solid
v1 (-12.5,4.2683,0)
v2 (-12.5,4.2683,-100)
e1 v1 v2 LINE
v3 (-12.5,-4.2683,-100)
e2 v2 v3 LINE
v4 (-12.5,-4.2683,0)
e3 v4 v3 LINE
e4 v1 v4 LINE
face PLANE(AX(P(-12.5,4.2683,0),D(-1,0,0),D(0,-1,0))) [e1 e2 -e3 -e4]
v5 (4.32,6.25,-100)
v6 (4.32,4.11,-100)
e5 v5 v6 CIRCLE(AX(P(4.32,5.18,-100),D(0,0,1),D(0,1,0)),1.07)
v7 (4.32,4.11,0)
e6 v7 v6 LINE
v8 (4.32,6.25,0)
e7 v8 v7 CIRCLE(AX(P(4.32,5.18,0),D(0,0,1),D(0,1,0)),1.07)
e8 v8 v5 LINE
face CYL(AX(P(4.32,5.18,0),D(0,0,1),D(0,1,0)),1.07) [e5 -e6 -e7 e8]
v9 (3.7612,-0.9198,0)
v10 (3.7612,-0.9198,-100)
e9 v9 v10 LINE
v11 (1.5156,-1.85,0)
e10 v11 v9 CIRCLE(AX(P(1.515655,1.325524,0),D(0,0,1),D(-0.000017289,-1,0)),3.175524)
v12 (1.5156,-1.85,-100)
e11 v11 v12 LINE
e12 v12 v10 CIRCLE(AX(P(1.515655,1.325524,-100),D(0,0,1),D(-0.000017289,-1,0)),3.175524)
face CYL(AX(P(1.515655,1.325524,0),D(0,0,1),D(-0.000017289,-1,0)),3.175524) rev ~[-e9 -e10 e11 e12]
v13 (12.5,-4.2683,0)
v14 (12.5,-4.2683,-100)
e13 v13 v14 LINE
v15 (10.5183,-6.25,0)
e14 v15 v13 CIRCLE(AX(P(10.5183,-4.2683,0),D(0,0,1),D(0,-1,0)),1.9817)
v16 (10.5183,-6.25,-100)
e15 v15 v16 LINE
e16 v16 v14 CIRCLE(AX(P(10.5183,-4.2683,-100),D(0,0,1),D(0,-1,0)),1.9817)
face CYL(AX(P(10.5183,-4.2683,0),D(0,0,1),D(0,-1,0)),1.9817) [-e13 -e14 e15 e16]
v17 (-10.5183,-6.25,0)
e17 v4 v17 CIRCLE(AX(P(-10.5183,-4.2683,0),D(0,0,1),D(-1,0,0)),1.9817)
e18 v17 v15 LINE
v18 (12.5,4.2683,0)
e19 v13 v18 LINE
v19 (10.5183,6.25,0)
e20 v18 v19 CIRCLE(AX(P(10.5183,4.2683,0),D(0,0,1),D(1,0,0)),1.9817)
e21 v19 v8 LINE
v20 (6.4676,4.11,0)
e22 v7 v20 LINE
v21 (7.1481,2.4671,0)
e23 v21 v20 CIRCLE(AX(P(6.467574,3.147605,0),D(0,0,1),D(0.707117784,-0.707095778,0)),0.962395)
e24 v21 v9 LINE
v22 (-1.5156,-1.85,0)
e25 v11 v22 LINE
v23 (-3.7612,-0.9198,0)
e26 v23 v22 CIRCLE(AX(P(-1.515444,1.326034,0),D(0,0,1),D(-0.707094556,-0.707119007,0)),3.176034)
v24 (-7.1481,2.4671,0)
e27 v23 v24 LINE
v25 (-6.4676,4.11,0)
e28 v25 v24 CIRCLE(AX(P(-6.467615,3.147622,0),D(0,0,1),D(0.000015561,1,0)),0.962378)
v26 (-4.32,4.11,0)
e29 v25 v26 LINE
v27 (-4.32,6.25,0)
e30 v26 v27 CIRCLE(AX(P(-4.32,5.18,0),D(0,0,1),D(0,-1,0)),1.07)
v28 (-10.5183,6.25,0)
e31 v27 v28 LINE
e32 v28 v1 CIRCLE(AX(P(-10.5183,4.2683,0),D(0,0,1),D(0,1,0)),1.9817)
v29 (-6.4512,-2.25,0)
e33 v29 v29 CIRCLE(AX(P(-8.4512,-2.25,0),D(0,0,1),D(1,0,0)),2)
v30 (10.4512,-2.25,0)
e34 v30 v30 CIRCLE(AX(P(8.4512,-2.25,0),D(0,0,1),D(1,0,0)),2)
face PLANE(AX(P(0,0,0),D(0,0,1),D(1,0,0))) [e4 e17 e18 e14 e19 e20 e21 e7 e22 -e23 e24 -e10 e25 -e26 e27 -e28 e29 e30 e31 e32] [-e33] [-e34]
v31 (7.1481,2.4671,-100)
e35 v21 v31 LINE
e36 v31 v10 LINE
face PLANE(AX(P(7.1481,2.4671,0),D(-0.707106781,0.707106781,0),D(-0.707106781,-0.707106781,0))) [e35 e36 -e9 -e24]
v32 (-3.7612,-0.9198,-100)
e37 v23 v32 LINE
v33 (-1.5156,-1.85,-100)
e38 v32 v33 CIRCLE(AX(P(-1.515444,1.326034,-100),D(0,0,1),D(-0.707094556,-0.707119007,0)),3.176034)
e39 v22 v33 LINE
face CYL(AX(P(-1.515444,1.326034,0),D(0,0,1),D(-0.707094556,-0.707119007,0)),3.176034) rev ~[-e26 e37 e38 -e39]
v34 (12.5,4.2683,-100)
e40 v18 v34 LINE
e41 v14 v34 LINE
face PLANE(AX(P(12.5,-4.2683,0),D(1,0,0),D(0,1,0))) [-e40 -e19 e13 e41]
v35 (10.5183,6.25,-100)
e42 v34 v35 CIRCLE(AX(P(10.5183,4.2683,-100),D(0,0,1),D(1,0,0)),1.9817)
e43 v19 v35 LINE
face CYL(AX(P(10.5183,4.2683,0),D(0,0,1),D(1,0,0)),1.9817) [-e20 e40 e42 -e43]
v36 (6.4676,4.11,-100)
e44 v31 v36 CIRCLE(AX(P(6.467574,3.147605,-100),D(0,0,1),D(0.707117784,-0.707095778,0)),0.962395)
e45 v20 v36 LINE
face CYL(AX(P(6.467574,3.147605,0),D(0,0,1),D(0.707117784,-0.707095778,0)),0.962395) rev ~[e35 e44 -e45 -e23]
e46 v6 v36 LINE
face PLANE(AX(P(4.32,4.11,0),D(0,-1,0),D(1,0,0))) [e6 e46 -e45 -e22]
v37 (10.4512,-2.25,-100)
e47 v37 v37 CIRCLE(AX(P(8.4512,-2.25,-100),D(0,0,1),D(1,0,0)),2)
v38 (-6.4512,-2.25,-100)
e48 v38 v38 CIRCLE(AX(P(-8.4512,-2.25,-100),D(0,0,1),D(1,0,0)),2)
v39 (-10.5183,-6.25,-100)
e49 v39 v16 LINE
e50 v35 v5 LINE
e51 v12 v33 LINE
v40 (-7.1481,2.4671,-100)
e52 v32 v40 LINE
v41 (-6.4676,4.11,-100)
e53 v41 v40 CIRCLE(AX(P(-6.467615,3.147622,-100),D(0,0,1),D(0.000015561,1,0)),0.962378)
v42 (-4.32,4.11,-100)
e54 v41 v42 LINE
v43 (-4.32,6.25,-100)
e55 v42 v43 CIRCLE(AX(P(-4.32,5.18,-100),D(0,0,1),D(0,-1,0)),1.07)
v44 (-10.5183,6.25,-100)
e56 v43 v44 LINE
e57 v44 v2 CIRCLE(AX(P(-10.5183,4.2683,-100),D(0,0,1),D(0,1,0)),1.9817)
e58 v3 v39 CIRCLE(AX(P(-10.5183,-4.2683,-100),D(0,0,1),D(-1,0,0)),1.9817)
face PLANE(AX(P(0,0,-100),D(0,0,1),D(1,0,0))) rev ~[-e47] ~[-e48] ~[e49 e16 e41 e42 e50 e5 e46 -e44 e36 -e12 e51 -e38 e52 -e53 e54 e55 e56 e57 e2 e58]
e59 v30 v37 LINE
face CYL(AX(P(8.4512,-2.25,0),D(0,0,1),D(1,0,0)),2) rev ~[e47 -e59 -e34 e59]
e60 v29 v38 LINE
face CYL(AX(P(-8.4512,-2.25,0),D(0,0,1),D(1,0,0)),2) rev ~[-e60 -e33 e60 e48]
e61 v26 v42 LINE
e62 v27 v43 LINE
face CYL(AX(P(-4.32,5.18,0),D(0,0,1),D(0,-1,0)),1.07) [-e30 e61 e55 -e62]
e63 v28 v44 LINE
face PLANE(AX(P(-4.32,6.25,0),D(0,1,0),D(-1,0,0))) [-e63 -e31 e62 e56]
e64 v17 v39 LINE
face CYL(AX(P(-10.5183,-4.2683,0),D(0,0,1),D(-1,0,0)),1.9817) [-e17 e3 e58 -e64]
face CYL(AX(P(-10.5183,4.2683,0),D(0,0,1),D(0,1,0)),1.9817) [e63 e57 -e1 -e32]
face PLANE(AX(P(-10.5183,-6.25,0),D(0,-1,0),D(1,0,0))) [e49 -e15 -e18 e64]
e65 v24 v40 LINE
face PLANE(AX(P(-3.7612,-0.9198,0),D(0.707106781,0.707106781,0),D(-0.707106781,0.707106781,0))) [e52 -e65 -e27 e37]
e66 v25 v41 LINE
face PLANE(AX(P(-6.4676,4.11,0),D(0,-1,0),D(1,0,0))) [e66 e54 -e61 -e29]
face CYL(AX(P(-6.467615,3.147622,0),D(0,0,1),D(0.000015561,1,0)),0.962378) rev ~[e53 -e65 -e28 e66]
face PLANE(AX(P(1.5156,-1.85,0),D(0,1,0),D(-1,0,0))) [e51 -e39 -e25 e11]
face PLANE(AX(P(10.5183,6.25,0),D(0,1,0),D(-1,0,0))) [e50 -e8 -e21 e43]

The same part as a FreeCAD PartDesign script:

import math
import FreeCAD as App
import Part
import Sketcher
from FreeCAD import Vector

doc = App.newDocument("Part")
body = doc.addObject("PartDesign::Body", "Body")

# Sketch on XY plane
sketch1 = body.newObject("Sketcher::SketchObject", "Sketch")
sketch1.AttachmentSupport = (doc.getObject("XY_Plane"), [""])
sketch1.MapMode = "FlatFace"
sketch1.addGeometry(Part.LineSegment(Vector(-4.32, 6.25, 0), Vector(-10.5183, 6.25, 0)), False)
sketch1.addGeometry(Part.ArcOfCircle(Part.Circle(Vector(-10.5183, 4.2683, 0), Vector(0, 0, 1), 1.9817), math.radians(90), math.radians(180)), False)
sketch1.addGeometry(Part.LineSegment(Vector(-12.5, 4.2683, 0), Vector(-12.5, -4.2683, 0)), False)
sketch1.addGeometry(Part.ArcOfCircle(Part.Circle(Vector(-10.5183, -4.2683, 0), Vector(0, 0, 1), 1.9817), math.radians(180), math.radians(270)), False)
sketch1.addGeometry(Part.LineSegment(Vector(-10.5183, -6.25, 0), Vector(10.5183, -6.25, 0)), False)
sketch1.addGeometry(Part.ArcOfCircle(Part.Circle(Vector(10.5183, -4.2683, 0), Vector(0, 0, 1), 1.9817), math.radians(-90), math.radians(0)), False)
sketch1.addGeometry(Part.LineSegment(Vector(12.5, -4.2683, 0), Vector(12.5, 4.2683, 0)), False)
sketch1.addGeometry(Part.ArcOfCircle(Part.Circle(Vector(10.5183, 4.2683, 0), Vector(0, 0, 1), 1.9817), math.radians(0), math.radians(90)), False)
sketch1.addGeometry(Part.LineSegment(Vector(10.5183, 6.25, 0), Vector(4.32, 6.25, 0)), False)
sketch1.addGeometry(Part.ArcOfCircle(Part.Circle(Vector(4.32, 5.18, 0), Vector(0, 0, 1), 1.07), math.radians(90), math.radians(270)), False)
sketch1.addGeometry(Part.LineSegment(Vector(4.32, 4.11, 0), Vector(6.4676, 4.11, 0)), False)
sketch1.addGeometry(Part.ArcOfCircle(Part.Circle(Vector(6.4676, 3.1476, 0), Vector(0, 0, 1), 0.962372), math.radians(-45), math.radians(90)), False)
sketch1.addGeometry(Part.LineSegment(Vector(7.1481, 2.4671, 0), Vector(3.7612, -0.9198, 0)), False)
sketch1.addGeometry(Part.ArcOfCircle(Part.Circle(Vector(1.5156, 1.3258, 0), Vector(0, 0, 1), 3.1758), math.radians(-90), math.radians(-45)), False)
sketch1.addGeometry(Part.LineSegment(Vector(1.5156, -1.85, 0), Vector(-1.5156, -1.85, 0)), False)
sketch1.addGeometry(Part.ArcOfCircle(Part.Circle(Vector(-1.5156, 1.3258, 0), Vector(0, 0, 1), 3.175758), math.radians(-135), math.radians(-90)), False)
sketch1.addGeometry(Part.LineSegment(Vector(-3.7612, -0.9198, 0), Vector(-7.1481, 2.4671, 0)), False)
sketch1.addGeometry(Part.ArcOfCircle(Part.Circle(Vector(-6.4676, 3.1476, 0), Vector(0, 0, 1), 0.9624), math.radians(90), math.radians(225)), False)
sketch1.addGeometry(Part.LineSegment(Vector(-6.4676, 4.11, 0), Vector(-4.32, 4.11, 0)), False)
sketch1.addGeometry(Part.ArcOfCircle(Part.Circle(Vector(-4.32, 5.18, 0), Vector(0, 0, 1), 1.07), math.radians(-90), math.radians(90)), False)
sketch1.addGeometry(Part.Circle(Vector(-8.4512, -2.25, 0), Vector(0, 0, 1), 2), False)
sketch1.addGeometry(Part.Circle(Vector(8.4512, -2.25, 0), Vector(0, 0, 1), 2), False)
sketch1.addConstraint(Sketcher.Constraint("Tangent", 0, 2, 1, 1))
sketch1.addConstraint(Sketcher.Constraint("Tangent", 1, 2, 2, 1))
sketch1.addConstraint(Sketcher.Constraint("Tangent", 2, 2, 3, 1))
sketch1.addConstraint(Sketcher.Constraint("Tangent", 3, 2, 4, 1))
sketch1.addConstraint(Sketcher.Constraint("Tangent", 4, 2, 5, 1))
sketch1.addConstraint(Sketcher.Constraint("Tangent", 5, 2, 6, 1))
sketch1.addConstraint(Sketcher.Constraint("Tangent", 6, 2, 7, 1))
sketch1.addConstraint(Sketcher.Constraint("Tangent", 7, 2, 8, 1))
sketch1.addConstraint(Sketcher.Constraint("Tangent", 8, 2, 9, 1))
sketch1.addConstraint(Sketcher.Constraint("Tangent", 9, 2, 10, 1))
sketch1.addConstraint(Sketcher.Constraint("Tangent", 10, 2, 11, 2))
sketch1.addConstraint(Sketcher.Constraint("Tangent", 11, 1, 12, 1))
sketch1.addConstraint(Sketcher.Constraint("Tangent", 12, 2, 13, 2))
sketch1.addConstraint(Sketcher.Constraint("Tangent", 13, 1, 14, 1))
sketch1.addConstraint(Sketcher.Constraint("Tangent", 14, 2, 15, 2))
sketch1.addConstraint(Sketcher.Constraint("Tangent", 15, 1, 16, 1))
sketch1.addConstraint(Sketcher.Constraint("Tangent", 16, 2, 17, 2))
sketch1.addConstraint(Sketcher.Constraint("Tangent", 17, 1, 18, 1))
sketch1.addConstraint(Sketcher.Constraint("Tangent", 18, 2, 19, 1))
sketch1.addConstraint(Sketcher.Constraint("Tangent", 19, 2, 0, 1))
sketch1.addConstraint(Sketcher.Constraint("Horizontal", 0))
sketch1.addConstraint(Sketcher.Constraint("Vertical", 2))
sketch1.addConstraint(Sketcher.Constraint("Horizontal", 4))
sketch1.addConstraint(Sketcher.Constraint("Vertical", 6))
sketch1.addConstraint(Sketcher.Constraint("Horizontal", 8))
sketch1.addConstraint(Sketcher.Constraint("Horizontal", 10))
sketch1.addConstraint(Sketcher.Constraint("Horizontal", 14))
sketch1.addConstraint(Sketcher.Constraint("Horizontal", 18))
sketch1.addConstraint(Sketcher.Constraint("Equal", 1, 3))
sketch1.addConstraint(Sketcher.Constraint("Equal", 3, 5))
sketch1.addConstraint(Sketcher.Constraint("Equal", 5, 7))
sketch1.addConstraint(Sketcher.Constraint("Equal", 13, 15))
sketch1.addConstraint(Sketcher.Constraint("Equal", 11, 17))
sketch1.addConstraint(Sketcher.Constraint("Equal", 9, 19))
sketch1.addConstraint(Sketcher.Constraint("Equal", 20, 21))
sketch1.addConstraint(Sketcher.Constraint("Symmetric", 1, 3, 5, 3, -1, 1))
sketch1.addConstraint(Sketcher.Constraint("Symmetric", 11, 3, 17, 3, -2))
sketch1.addConstraint(Sketcher.Constraint("Symmetric", 20, 3, 21, 3, -2))
sketch1.addConstraint(Sketcher.Constraint("Perpendicular", 12, 16))
sketch1.addConstraint(Sketcher.Constraint("Horizontal", 12, 2, 15, 1))
sketch1.addConstraint(Sketcher.Constraint("Equal", 0, 8))
sketch1.addConstraint(Sketcher.Constraint("Diameter", 20, 4.0))
sketch1.addConstraint(Sketcher.Constraint("Radius", 9, 1.07))
sketch1.addConstraint(Sketcher.Constraint("DistanceY", 3, 2, 20, 3, 4.0))
sketch1.addConstraint(Sketcher.Constraint("DistanceX", 1, 2, -1, 1, 12.5))
sketch1.addConstraint(Sketcher.Constraint("Radius", 1, 1.9817))
sketch1.addConstraint(Sketcher.Constraint("Radius", 11, 0.9624))
sketch1.addConstraint(Sketcher.Constraint("Radius", 13, 3.1758))
sketch1.addConstraint(Sketcher.Constraint("DistanceY", 20, 3, 0, 2, 8.5))
sketch1.addConstraint(Sketcher.Constraint("DistanceY", 21, 3, 13, 1, 0.4))
sketch1.addConstraint(Sketcher.Constraint("DistanceX", -1, 1, 9, 3, 4.32))
sketch1.addConstraint(Sketcher.Constraint("DistanceX", 12, 2, 21, 3, 4.69))
sketch1.addConstraint(Sketcher.Constraint("DistanceX", 10, 1, 10, 2, 2.1476))
pad1 = body.newObject("PartDesign::Pad", "Pad")
pad1.Profile = sketch1
pad1.Length = 100
pad1.Reversed = True

doc.recompute()
